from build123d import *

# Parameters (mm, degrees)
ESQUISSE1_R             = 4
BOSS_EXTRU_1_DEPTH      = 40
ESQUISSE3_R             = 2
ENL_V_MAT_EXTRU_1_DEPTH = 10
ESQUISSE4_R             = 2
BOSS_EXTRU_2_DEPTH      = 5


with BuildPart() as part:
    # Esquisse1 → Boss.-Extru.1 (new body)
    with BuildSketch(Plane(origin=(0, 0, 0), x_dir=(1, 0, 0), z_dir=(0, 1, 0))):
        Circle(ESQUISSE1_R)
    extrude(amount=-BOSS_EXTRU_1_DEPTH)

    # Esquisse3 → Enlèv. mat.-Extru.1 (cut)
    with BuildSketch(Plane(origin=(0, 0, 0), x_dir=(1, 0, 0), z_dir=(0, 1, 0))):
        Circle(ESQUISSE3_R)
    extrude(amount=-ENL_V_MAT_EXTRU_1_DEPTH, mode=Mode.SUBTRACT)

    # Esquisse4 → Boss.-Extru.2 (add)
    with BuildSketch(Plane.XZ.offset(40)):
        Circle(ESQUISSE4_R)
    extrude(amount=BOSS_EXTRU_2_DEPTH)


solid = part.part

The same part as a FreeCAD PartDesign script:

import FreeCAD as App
import Part
import Sketcher

doc = App.newDocument("Part")
body = doc.addObject("PartDesign::Body", "Body")

# Sketch on XZ plane
sketch1 = body.newObject("Sketcher::SketchObject", "Sketch")
sketch1.AttachmentSupport = (doc.getObject("XZ_Plane"), [""])
sketch1.MapMode = "FlatFace"
sketch1.addGeometry(Part.Circle(App.Vector(0, 0, 0), App.Vector(0, 0, 1), 4), False)
sketch1.addConstraint([
    Sketcher.Constraint("Coincident", 0, 3, -1, 1),
    Sketcher.Constraint("Diameter", 0, 8.0),
])
pad1 = body.newObject("PartDesign::Pad", "Pad")
pad1.Profile = sketch1
pad1.Length = 40

# Sketch on XZ plane
sketch2 = body.newObject("Sketcher::SketchObject", "Sketch001")
sketch2.AttachmentSupport = (doc.getObject("XZ_Plane"), [""])
sketch2.MapMode = "FlatFace"
sketch2.addGeometry(Part.Circle(App.Vector(0, 0, 0), App.Vector(0, 0, 1), 2), False)
sketch2.addConstraint([
    Sketcher.Constraint("Coincident", 0, 3, -1, 1),
    Sketcher.Constraint("Diameter", 0, 4.0),
])
pocket1 = body.newObject("PartDesign::Pocket", "Pocket")
pocket1.Profile = sketch2
pocket1.Length = 10
pocket1.Reversed = True

# Sketch on XZ plane
sketch3 = body.newObject("Sketcher::SketchObject", "Sketch002")
sketch3.AttachmentSupport = (doc.getObject("XZ_Plane"), [""])
sketch3.MapMode = "FlatFace"
sketch3.AttachmentOffset = App.Placement(App.Vector(0, 0, 40), App.Rotation())
sketch3.addGeometry(Part.Circle(App.Vector(0, 0, 0), App.Vector(0, 0, 1), 2), False)
sketch3.addConstraint([
    Sketcher.Constraint("Coincident", 0, 3, -1, 1),
    Sketcher.Constraint("Diameter", 0, 4.0),
])
pad2 = body.newObject("PartDesign::Pad", "Pad001")
pad2.Profile = sketch3
pad2.Length = 5

doc.recompute()
